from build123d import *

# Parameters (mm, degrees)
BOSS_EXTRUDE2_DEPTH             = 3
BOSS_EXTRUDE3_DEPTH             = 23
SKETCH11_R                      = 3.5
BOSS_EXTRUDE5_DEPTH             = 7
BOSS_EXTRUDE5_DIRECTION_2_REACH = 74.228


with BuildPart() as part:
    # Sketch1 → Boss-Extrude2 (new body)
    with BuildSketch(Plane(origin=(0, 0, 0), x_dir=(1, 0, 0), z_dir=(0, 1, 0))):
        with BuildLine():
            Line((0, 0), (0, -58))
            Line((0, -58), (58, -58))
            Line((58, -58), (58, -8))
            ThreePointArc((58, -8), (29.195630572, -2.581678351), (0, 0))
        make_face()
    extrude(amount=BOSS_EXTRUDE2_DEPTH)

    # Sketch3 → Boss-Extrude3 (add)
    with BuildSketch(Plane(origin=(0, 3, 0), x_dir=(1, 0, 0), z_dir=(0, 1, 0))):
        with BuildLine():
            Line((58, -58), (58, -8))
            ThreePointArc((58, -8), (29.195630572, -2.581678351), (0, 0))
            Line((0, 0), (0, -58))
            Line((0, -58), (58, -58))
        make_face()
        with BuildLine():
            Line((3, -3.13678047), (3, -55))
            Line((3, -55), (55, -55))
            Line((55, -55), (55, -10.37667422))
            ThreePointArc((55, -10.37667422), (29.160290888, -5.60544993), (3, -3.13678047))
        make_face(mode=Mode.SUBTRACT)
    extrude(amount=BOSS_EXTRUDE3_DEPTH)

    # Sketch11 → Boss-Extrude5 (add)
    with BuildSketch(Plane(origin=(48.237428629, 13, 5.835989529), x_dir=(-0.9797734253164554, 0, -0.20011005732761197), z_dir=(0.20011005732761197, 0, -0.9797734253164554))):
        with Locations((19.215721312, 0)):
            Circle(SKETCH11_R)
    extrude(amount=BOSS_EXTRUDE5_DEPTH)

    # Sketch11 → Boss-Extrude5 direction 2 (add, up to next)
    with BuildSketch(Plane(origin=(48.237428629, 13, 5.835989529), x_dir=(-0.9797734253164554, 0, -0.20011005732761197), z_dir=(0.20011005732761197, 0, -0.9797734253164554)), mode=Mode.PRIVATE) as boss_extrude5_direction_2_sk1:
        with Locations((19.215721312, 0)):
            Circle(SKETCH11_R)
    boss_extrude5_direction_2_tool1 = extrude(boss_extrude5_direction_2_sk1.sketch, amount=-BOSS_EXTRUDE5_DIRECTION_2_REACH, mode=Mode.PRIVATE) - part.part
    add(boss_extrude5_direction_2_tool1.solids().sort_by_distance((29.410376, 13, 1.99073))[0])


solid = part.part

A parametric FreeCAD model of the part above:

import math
import FreeCAD as App
import Part
import Sketcher
from FreeCAD import Vector

doc = App.newDocument("Part")
body = doc.addObject("PartDesign::Body", "Body")
body.AllowCompound = True

sketch1 = body.newObject("Sketcher::SketchObject", "Sketch")
sketch1.AttachmentSupport = (doc.getObject("XZ_Plane"), [""])
sketch1.MapMode = "FlatFace"
sketch1.addGeometry([
    Part.LineSegment(Vector(0, 0, 0), Vector(0, 58, 0)),
    Part.LineSegment(Vector(0, 58, 0), Vector(58, 58, 0)),
    Part.LineSegment(Vector(58, 58, 0), Vector(58, 8, 0)),
    Part.ArcOfCircle(Part.Circle(Vector(-12, 300, 0), Vector(0, 0, 1), 300), math.radians(-87.75), math.radians(-76.55)),
], False)
sketch1.addConstraint([
    Sketcher.Constraint("Coincident", 0, 2, 1, 1),
    Sketcher.Constraint("Coincident", 1, 2, 2, 1),
    Sketcher.Constraint("Coincident", 2, 2, 3, 2),
    Sketcher.Constraint("Coincident", 3, 1, 0, 1),
    Sketcher.Constraint("Vertical", 0),
    Sketcher.Constraint("Horizontal", 1),
    Sketcher.Constraint("Vertical", 2),
    Sketcher.Constraint("PointOnObject", 0, 2, -2),
    Sketcher.Constraint("Equal", 1, 0),
    Sketcher.Constraint("Radius", 3, 300.0),
    Sketcher.Constraint("DistanceX", 1, 1, 1, 2, 58.0),
    Sketcher.Constraint("DistanceY", 2, 2, 2, 1, 50.0),
    Sketcher.Constraint("DistanceY", -1, 1, 0, 2, 58.0),
])
pad1 = body.newObject("PartDesign::Pad", "Pad")
pad1.Profile = sketch1
pad1.Length = 3
pad1.Reversed = True

sketch2 = body.newObject("Sketcher::SketchObject", "Sketch001")
sketch2.AttachmentSupport = (doc.getObject("XZ_Plane"), [""])
sketch2.MapMode = "FlatFace"
sketch2.AttachmentOffset = App.Placement(Vector(0, 0, -3), App.Rotation())
sketch2.addGeometry([
    Part.LineSegment(Vector(58, 58, 0), Vector(58, 8, 0)),
    Part.ArcOfCircle(Part.Circle(Vector(-12, 300, 0), Vector(0, 0, 1), 300), math.radians(-87.75), math.radians(-76.55)),
    Part.LineSegment(Vector(0, 0, 0), Vector(0, 58, 0)),
    Part.LineSegment(Vector(0, 58, 0), Vector(58, 58, 0)),
    Part.LineSegment(Vector(3, 55, 0), Vector(3, 3, 0)),
    Part.ArcOfCircle(Part.Circle(Vector(-12, 300, 0), Vector(0, 0, 1), 297), math.radians(-87.14), math.radians(-77)),
    Part.LineSegment(Vector(55, 10, 0), Vector(55, 55, 0)),
    Part.LineSegment(Vector(55, 55, 0), Vector(3, 55, 0)),
], False)
sketch2.addConstraint([
    Sketcher.Constraint("Coincident", 0, 2, 1, 2),
    Sketcher.Constraint("Coincident", 1, 1, 2, 1),
    Sketcher.Constraint("Coincident", 2, 2, 3, 1),
    Sketcher.Constraint("Coincident", 3, 2, 0, 1),
    Sketcher.Constraint("Coincident", 4, 2, 5, 1),
    Sketcher.Constraint("Coincident", 5, 2, 6, 1),
    Sketcher.Constraint("Coincident", 6, 2, 7, 1),
    Sketcher.Constraint("Coincident", 7, 2, 4, 1),
    Sketcher.Constraint("Vertical", 0),
    Sketcher.Constraint("Vertical", 2),
    Sketcher.Constraint("Horizontal", 3),
    Sketcher.Constraint("Vertical", 4),
    Sketcher.Constraint("Vertical", 6),
    Sketcher.Constraint("Horizontal", 7),
    Sketcher.Constraint("Coincident", 5, 3, 1, 3),
    Sketcher.Constraint("PointOnObject", 2, 2, -2),
    Sketcher.Constraint("Equal", 3, 2),
    Sketcher.Constraint("Radius", 1, 300.0),
    Sketcher.Constraint("Radius", 5, 297.0),
    Sketcher.Constraint("DistanceX", 3, 1, 3, 2, 58.0),
    Sketcher.Constraint("DistanceX", 7, 2, 7, 1, 52.0),
    Sketcher.Constraint("DistanceY", 0, 2, 0, 1, 50.0),
    Sketcher.Constraint("DistanceY", -1, 1, 0, 2, 8.0),
    Sketcher.Constraint("DistanceX", -1, 1, 4, 2, 3.0),
    Sketcher.Constraint("DistanceY", -1, 1, 6, 2, 55.0),
])
pad2 = body.newObject("PartDesign::Pad", "Pad001")
pad2.Profile = sketch2
pad2.Length = 23
pad2.Reversed = True

sketch3 = body.newObject("Sketcher::SketchObject", "Sketch002")
sketch3.Placement = App.Placement(Vector(48.237429, 13, 5.83599), App.Rotation(Vector(-0.979773425, 0, -0.200110057), Vector(0, 0.999999999, 0), Vector(0.200110057, 0, -0.979773425), "ZXY"))
sketch3.addGeometry(Part.Circle(Vector(19.2, 0, 0), Vector(0, 0, 1), 3.5), False)
sketch3.addConstraint([
    Sketcher.Constraint("PointOnObject", 0, 3, -1),
    Sketcher.Constraint("Diameter", 0, 7.0),
    Sketcher.Constraint("DistanceX", -1, 1, 0, 3, 19.215721),
])
pad3 = body.newObject("PartDesign::Pad", "Pad002")
pad3.Profile = sketch3
pad3.Length = 7

sketch4 = body.newObject("Sketcher::SketchObject", "Sketch003")
sketch4.Placement = App.Placement(Vector(48.237429, 13, 5.83599), App.Rotation(Vector(-0.979773425, 0, -0.200110057), Vector(0, 0.999999999, 0), Vector(0.200110057, 0, -0.979773425), "ZXY"))
sketch4.addGeometry(Part.Circle(Vector(19.2, 0, 0), Vector(0, 0, 1), 3.5), False)
sketch4.addConstraint([
    Sketcher.Constraint("PointOnObject", 0, 3, -1),
    Sketcher.Constraint("Diameter", 0, 7.0),
    Sketcher.Constraint("DistanceX", -1, 1, 0, 3, 19.215721),
])
pad4 = body.newObject("PartDesign::Pad", "Pad003")
pad4.Profile = sketch4
pad4.Type = "UpToFirst"
pad4.Reversed = True

doc.recompute()
